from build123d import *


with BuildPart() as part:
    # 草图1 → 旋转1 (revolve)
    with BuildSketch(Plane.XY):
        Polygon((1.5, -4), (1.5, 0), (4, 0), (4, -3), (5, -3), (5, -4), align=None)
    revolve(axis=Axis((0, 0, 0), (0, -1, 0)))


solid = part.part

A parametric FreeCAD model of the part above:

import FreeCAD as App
import Part
import Sketcher
from FreeCAD import Vector
Q = App.Units.Quantity

doc = App.newDocument("Part")
body = doc.addObject("PartDesign::Body", "Body")

# Sketch on XY plane
sketch1 = body.newObject("Sketcher::SketchObject", "Sketch")
sketch1.AttachmentSupport = (doc.getObject("XY_Plane"), [""])
sketch1.MapMode = "FlatFace"
sketch1.addGeometry(Part.LineSegment(Vector(1.5, 0, 0), Vector(1.5, -4, 0)), False)
sketch1.addGeometry(Part.LineSegment(Vector(1.5, -4, 0), Vector(5, -4, 0)), False)
sketch1.addGeometry(Part.LineSegment(Vector(5, -4, 0), Vector(5, -3, 0)), False)
sketch1.addGeometry(Part.LineSegment(Vector(5, -3, 0), Vector(4, -3, 0)), False)
sketch1.addGeometry(Part.LineSegment(Vector(4, -3, 0), Vector(4, 0, 0)), False)
sketch1.addGeometry(Part.LineSegment(Vector(4, 0, 0), Vector(1.5, 0, 0)), False)
sketch1.addConstraint(Sketcher.Constraint("Coincident", 0, 2, 1, 1))
sketch1.addConstraint(Sketcher.Constraint("Coincident", 1, 2, 2, 1))
sketch1.addConstraint(Sketcher.Constraint("Coincident", 2, 2, 3, 1))
sketch1.addConstraint(Sketcher.Constraint("Coincident", 3, 2, 4, 1))
sketch1.addConstraint(Sketcher.Constraint("Coincident", 4, 2, 5, 1))
sketch1.addConstraint(Sketcher.Constraint("Coincident", 5, 2, 0, 1))
sketch1.addConstraint(Sketcher.Constraint("Vertical", 0))
sketch1.addConstraint(Sketcher.Constraint("Horizontal", 1))
sketch1.addConstraint(Sketcher.Constraint("Vertical", 2))
sketch1.addConstraint(Sketcher.Constraint("Horizontal", 3))
sketch1.addConstraint(Sketcher.Constraint("Vertical", 4))
sketch1.addConstraint(Sketcher.Constraint("Horizontal", 5))
sketch1.addConstraint(Sketcher.Constraint("PointOnObject", 4, 2, -1))
sketch1.addConstraint(Sketcher.Constraint("Equal", 3, 2))
sketch1.addConstraint(Sketcher.Constraint("DistanceX", 3, 2, 3, 1, Q("1 mm")))
sketch1.addConstraint(Sketcher.Constraint("DistanceY", 0, 2, 0, 1, Q("4 mm")))
sketch1.addConstraint(Sketcher.Constraint("DistanceX", 1, 1, 1, 2, Q("3.5 mm")))
sketch1.addConstraint(Sketcher.Constraint("DistanceX", -1, 1, 1, 2, Q("5 mm")))
revolution = body.newObject("PartDesign::Revolution", "Revolution")
revolution.Profile = sketch1
revolution.ReferenceAxis = (sketch1, ["V_Axis"])
revolution.Angle = 360

doc.recompute()
